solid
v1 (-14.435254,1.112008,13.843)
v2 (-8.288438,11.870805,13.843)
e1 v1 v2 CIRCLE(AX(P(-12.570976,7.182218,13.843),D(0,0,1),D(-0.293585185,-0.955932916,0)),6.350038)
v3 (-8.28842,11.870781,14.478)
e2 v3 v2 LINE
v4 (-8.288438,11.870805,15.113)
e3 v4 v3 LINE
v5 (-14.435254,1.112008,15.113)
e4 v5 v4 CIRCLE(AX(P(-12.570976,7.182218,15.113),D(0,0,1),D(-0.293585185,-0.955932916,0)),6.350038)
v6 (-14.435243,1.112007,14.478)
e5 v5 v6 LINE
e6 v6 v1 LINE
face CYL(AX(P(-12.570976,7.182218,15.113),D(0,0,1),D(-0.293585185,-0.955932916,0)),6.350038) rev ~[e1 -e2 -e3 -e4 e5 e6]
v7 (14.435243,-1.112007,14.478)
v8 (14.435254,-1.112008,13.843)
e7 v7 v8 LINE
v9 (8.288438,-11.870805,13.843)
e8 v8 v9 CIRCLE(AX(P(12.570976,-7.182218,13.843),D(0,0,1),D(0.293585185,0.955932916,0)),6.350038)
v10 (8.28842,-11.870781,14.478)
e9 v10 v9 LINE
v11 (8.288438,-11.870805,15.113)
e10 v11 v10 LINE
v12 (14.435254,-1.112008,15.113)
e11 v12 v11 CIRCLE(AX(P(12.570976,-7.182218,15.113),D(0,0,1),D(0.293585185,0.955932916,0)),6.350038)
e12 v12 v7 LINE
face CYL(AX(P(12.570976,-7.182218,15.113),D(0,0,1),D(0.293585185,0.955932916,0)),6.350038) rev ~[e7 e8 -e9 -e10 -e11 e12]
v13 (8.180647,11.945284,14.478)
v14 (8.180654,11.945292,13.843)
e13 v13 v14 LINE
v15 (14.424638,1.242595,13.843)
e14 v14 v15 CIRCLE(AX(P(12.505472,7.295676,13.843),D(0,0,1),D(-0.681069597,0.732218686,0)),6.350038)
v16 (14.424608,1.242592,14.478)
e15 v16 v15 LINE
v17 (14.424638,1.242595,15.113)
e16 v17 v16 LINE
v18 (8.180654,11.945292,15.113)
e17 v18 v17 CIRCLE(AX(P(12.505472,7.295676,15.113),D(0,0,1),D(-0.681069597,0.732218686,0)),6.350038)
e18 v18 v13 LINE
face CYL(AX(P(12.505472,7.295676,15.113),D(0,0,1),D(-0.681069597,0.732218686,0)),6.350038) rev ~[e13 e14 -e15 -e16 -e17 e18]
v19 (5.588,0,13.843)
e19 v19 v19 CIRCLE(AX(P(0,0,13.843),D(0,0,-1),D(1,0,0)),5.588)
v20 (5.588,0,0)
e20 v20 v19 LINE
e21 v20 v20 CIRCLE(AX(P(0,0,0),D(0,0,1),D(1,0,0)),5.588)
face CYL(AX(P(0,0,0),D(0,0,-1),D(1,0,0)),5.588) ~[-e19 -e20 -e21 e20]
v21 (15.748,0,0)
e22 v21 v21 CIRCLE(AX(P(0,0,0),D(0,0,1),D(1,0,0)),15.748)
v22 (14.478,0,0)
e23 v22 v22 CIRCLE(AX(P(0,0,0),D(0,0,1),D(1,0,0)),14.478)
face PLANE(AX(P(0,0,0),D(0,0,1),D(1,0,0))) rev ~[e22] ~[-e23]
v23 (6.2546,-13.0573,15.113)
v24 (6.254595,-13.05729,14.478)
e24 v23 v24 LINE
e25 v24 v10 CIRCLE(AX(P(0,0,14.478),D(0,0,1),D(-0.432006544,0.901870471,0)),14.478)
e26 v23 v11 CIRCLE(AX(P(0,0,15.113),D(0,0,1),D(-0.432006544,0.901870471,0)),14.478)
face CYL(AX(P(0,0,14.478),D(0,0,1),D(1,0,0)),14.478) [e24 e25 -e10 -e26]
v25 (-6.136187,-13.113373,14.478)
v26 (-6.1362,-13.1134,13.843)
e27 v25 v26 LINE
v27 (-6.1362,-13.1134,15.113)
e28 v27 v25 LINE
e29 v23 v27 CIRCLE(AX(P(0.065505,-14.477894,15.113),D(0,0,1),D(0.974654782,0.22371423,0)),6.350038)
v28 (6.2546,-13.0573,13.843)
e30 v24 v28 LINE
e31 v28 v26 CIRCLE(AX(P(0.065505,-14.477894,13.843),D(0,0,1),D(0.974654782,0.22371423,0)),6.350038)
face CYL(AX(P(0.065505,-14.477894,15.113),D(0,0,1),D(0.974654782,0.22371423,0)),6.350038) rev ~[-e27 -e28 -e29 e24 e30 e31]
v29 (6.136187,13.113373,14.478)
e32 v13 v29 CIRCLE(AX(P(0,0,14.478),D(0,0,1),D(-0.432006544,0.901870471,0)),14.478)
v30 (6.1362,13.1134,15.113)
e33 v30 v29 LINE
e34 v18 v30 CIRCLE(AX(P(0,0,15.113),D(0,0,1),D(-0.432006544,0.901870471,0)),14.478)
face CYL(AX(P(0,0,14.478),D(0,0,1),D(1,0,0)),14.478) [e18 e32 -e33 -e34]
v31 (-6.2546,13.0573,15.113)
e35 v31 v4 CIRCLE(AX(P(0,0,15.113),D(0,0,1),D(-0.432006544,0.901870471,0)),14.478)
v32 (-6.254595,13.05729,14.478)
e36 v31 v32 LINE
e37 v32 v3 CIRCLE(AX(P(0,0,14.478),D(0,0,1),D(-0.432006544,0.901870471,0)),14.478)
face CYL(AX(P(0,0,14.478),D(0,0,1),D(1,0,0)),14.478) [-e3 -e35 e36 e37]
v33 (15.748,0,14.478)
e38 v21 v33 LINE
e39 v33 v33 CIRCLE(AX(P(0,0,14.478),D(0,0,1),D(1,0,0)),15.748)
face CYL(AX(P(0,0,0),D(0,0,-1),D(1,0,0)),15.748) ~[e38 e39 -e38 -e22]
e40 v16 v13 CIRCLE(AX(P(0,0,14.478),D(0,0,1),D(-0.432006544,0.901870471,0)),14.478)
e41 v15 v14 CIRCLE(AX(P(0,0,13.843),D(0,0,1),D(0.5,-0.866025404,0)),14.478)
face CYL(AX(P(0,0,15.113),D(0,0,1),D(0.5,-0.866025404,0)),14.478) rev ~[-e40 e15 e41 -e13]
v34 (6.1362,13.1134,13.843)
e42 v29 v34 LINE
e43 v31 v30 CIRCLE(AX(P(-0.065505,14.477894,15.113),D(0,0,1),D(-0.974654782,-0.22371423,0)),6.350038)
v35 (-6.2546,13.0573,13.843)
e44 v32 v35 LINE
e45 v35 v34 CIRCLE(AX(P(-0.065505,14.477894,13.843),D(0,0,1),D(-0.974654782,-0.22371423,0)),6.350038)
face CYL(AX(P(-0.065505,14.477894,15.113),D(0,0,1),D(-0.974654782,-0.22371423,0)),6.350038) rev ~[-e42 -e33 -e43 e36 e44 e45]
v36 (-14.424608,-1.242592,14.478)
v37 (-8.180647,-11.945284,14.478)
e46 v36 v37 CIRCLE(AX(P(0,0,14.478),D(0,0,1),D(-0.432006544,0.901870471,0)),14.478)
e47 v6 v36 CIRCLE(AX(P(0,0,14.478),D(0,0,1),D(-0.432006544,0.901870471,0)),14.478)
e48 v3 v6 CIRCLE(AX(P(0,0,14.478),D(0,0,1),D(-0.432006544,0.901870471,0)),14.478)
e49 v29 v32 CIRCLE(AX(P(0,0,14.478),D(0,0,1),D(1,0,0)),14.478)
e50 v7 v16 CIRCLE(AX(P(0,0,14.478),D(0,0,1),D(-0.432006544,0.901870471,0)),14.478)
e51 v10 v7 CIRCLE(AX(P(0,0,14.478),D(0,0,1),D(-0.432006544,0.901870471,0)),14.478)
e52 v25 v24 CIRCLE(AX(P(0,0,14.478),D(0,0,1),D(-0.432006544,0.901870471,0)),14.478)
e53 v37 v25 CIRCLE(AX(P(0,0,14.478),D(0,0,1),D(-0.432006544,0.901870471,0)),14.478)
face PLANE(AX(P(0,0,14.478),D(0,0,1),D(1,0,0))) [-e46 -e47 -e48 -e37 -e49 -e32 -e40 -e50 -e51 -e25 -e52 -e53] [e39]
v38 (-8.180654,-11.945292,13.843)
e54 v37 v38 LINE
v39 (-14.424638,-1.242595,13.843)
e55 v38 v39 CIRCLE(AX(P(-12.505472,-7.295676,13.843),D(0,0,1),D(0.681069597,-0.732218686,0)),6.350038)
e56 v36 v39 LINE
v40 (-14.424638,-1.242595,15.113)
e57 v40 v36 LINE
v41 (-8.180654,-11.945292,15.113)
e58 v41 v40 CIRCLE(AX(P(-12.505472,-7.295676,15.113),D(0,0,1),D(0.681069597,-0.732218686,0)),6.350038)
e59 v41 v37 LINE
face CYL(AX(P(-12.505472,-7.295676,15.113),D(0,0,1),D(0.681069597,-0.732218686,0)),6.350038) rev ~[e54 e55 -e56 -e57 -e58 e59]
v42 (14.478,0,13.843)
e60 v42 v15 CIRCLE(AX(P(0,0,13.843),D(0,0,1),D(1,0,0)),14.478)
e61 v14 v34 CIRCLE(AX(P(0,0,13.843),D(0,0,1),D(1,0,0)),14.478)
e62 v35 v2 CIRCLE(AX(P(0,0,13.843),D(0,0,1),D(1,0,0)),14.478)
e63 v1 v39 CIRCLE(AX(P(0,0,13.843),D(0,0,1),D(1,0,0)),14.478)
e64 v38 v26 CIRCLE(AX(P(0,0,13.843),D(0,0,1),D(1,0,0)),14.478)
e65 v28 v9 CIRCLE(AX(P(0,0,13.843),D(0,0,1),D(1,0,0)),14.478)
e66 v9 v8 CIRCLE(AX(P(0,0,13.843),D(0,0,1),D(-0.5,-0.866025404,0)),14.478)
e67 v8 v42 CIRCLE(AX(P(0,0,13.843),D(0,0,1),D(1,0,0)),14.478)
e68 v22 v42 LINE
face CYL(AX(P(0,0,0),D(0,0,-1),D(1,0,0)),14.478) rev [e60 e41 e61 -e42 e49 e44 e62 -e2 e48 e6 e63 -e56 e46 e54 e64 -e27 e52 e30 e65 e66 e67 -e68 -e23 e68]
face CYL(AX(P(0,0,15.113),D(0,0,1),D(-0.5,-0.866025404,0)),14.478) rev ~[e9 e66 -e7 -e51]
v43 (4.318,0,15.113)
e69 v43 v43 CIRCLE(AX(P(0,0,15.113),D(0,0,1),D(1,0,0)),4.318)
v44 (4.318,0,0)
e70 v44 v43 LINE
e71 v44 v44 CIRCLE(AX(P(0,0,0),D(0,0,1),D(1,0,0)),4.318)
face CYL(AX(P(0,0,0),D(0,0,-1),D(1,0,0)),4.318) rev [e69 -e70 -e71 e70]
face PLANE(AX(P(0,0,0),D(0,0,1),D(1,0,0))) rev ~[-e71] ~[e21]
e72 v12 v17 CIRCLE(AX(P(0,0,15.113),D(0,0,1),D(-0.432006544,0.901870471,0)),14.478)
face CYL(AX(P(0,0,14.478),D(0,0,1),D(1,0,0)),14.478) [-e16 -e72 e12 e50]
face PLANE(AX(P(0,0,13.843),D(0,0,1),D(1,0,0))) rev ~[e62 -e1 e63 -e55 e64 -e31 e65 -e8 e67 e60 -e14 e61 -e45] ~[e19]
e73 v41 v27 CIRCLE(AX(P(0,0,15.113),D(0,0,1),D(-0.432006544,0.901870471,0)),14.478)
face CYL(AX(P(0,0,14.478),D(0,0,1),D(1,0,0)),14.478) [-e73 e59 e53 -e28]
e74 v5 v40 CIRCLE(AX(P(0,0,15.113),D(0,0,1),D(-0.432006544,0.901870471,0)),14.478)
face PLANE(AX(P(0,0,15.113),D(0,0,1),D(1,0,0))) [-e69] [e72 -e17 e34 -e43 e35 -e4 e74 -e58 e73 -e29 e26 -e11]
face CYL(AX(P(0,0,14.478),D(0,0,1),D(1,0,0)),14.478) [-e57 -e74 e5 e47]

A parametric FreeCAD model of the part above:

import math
import FreeCAD as App
import Part
import Sketcher
Q = App.Units.Quantity

doc = App.newDocument("Part")
body = doc.addObject("PartDesign::Body", "Body")
body.AllowCompound = True

# Sketch on XY plane
sketch1 = body.newObject("Sketcher::SketchObject", "Sketch")
sketch1.AttachmentSupport = (doc.getObject("XY_Plane"), [""])
sketch1.MapMode = "FlatFace"
sketch1.addGeometry(Part.Circle(App.Vector(0, 0, 0), App.Vector(0, 0, 1), 5.588), False)
sketch1.addGeometry(Part.Circle(App.Vector(0, 0, 0), App.Vector(0, 0, 1), 4.318), False)
sketch1.addGeometry(Part.Circle(App.Vector(0, 0, 0), App.Vector(0, 0, 1), 15.748), False)
sketch1.addGeometry(Part.Circle(App.Vector(0, 0, 0), App.Vector(0, 0, 1), 14.478), False)
sketch1.addConstraint(Sketcher.Constraint("Coincident", 0, 3, -1, 1))
sketch1.addConstraint(Sketcher.Constraint("Coincident", 1, 3, -1, 1))
sketch1.addConstraint(Sketcher.Constraint("Coincident", 2, 3, -1, 1))
sketch1.addConstraint(Sketcher.Constraint("Coincident", 3, 3, -1, 1))
sketch1.addConstraint(Sketcher.Constraint("Diameter", 0, Q("0.44 in")))
sketch1.addConstraint(Sketcher.Constraint("Diameter", 1, Q("0.34 in")))
sketch1.addConstraint(Sketcher.Constraint("Diameter", 2, Q("1.24 in")))
sketch1.addConstraint(Sketcher.Constraint("Diameter", 3, Q("1.14 in")))
pad1 = body.newObject("PartDesign::Pad", "Pad")
pad1.Profile = sketch1
pad1.Length = Q("0.57 in")

# Sketch on XY plane
sketch2 = body.newObject("Sketcher::SketchObject", "Sketch001")
sketch2.AttachmentSupport = (doc.getObject("XY_Plane"), [""])
sketch2.MapMode = "FlatFace"
sketch2.AttachmentOffset = App.Placement(App.Vector(0, 0, 0.57 * 25.4), App.Rotation())
sketch2.addGeometry(Part.Circle(App.Vector(0, 0, 0), App.Vector(0, 0, 1), 14.478), False)
sketch2.addGeometry(Part.Circle(App.Vector(0, 0, 0), App.Vector(0, 0, 1), 4.318), False)
sketch2.addConstraint(Sketcher.Constraint("Coincident", 0, 3, -1, 1))
sketch2.addConstraint(Sketcher.Constraint("Coincident", 1, 3, -1, 1))
sketch2.addConstraint(Sketcher.Constraint("Diameter", 0, Q("1.14 in")))
sketch2.addConstraint(Sketcher.Constraint("Diameter", 1, Q("0.34 in")))
pad2 = body.newObject("PartDesign::Pad", "Pad001")
pad2.Profile = sketch2
pad2.Length = Q("0.05 in")
pad2.Midplane = True

# Sketch on XY plane
sketch3 = body.newObject("Sketcher::SketchObject", "Sketch002")
sketch3.AttachmentSupport = (doc.getObject("XY_Plane"), [""])
sketch3.MapMode = "FlatFace"
sketch3.AttachmentOffset = App.Placement(App.Vector(0, 0, 0.595 * 25.4), App.Rotation())
sketch3.addGeometry(Part.ArcOfCircle(Part.Circle(App.Vector(-0.0655, 14.4779, 0), App.Vector(0, 0, 1), 6.350044), math.radians(-167.072675), math.radians(-12.408529)), False)
sketch3.addGeometry(Part.ArcOfCircle(Part.Circle(App.Vector(0, 0, 0), App.Vector(0, 0, 1), 14.478), math.radians(64.923529), math.radians(115.594968)), False)
sketch3.addConstraint(Sketcher.Constraint("Coincident", 0, 1, 1, 2))
sketch3.addConstraint(Sketcher.Constraint("Coincident", 1, 1, 0, 2))
sketch3.addConstraint(Sketcher.Constraint("Coincident", 1, 3, -1, 1))
sketch3.addConstraint(Sketcher.Constraint("Radius", 0, Q("0.25 in")))
sketch3.addConstraint(Sketcher.Constraint("Radius", 1, Q("0.57 in")))
sketch3.addConstraint(Sketcher.Constraint("DistanceY", -1, 1, 0, 3, Q("0.57 in")))
sketch3.addConstraint(Sketcher.Constraint("DistanceY", 0, 1, 1, 1, Q("0.0022 in")))
pocket1 = body.newObject("PartDesign::Pocket", "Pocket")
pocket1.Profile = sketch3
pocket1.Length = Q("0.05 in")
doc.recompute()

polarpattern = body.newObject("PartDesign::PolarPattern", "PolarPattern")
polarpattern.Originals = [pocket1]
polarpattern.Axis = (doc.getObject("Z_Axis"), [""])
polarpattern.Angle = 360
polarpattern.Occurrences = 6
body.Tip = polarpattern

doc.recompute()
